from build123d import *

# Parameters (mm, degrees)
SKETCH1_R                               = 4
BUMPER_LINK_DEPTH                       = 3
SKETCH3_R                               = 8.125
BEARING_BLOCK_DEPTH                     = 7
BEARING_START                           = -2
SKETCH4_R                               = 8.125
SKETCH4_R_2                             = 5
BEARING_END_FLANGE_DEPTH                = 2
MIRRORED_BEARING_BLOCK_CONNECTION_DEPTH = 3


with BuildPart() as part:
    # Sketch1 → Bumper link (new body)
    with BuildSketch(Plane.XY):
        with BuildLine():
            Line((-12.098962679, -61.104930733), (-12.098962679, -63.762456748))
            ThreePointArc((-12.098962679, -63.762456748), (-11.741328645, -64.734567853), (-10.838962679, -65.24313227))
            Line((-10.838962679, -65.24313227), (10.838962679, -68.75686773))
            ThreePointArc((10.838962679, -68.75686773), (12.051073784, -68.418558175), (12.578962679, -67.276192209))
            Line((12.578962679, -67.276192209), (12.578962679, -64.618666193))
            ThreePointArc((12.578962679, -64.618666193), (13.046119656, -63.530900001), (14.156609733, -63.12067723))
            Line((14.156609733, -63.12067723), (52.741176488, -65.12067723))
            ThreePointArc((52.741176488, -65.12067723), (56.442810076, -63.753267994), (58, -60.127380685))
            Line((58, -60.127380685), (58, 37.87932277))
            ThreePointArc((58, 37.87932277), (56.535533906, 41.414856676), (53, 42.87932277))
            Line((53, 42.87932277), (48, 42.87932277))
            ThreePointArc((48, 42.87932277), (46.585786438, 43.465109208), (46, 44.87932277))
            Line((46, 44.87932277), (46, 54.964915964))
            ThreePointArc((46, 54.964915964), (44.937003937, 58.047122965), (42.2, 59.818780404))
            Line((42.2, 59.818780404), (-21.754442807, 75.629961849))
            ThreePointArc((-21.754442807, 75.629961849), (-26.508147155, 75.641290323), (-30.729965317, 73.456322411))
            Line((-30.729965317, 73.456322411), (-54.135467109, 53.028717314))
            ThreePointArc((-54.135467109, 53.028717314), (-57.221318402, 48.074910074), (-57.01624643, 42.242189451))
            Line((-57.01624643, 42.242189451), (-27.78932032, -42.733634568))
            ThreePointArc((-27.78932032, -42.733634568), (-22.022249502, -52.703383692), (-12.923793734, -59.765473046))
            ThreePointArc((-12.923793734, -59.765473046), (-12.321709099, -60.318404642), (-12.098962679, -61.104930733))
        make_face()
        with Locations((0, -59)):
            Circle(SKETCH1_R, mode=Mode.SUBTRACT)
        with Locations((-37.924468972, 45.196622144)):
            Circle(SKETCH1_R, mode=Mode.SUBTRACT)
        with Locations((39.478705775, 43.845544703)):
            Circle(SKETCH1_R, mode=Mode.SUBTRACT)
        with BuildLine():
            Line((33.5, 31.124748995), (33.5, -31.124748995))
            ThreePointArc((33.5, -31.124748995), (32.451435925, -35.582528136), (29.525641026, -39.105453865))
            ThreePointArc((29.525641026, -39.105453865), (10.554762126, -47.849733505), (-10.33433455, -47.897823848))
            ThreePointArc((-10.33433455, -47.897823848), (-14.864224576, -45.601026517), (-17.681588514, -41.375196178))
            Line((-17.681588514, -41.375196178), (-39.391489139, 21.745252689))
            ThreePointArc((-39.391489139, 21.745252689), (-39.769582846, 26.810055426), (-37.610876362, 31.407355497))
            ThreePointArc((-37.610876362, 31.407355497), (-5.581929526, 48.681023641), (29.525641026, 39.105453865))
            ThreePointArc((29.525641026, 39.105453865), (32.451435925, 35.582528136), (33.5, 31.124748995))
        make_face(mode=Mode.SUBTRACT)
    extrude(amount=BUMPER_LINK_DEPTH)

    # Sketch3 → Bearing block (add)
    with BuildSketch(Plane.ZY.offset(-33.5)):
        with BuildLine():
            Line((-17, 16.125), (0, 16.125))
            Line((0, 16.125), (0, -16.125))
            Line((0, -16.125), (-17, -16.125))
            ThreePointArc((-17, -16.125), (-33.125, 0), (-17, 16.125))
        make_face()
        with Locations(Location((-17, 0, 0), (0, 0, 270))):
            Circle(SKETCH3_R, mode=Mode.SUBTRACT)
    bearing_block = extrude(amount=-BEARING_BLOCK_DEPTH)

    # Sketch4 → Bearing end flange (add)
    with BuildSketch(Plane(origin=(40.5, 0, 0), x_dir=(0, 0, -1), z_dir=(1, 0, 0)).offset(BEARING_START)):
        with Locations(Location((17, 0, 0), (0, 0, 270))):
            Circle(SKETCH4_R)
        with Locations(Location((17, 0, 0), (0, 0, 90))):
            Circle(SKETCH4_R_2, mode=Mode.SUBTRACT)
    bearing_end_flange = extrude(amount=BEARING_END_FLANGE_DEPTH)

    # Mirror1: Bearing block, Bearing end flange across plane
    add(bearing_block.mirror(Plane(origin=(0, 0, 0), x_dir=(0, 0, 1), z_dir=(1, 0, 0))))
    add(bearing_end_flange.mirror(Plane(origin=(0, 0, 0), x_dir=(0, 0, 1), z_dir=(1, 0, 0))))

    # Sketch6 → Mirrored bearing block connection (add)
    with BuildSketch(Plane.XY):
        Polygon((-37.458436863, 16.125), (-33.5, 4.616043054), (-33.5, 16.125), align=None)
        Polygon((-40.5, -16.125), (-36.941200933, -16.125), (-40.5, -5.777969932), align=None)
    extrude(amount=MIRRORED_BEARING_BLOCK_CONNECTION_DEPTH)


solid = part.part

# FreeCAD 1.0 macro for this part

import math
import FreeCAD as App
import Part
import Sketcher

doc = App.newDocument("Part")
body = doc.addObject("PartDesign::Body", "Body")

# Sketch on XY plane
sketch1 = body.newObject("Sketcher::SketchObject", "Sketch")
sketch1.AttachmentSupport = (doc.getObject("XY_Plane"), [""])
sketch1.MapMode = "FlatFace"
sketch1.addGeometry([
    Part.LineSegment(App.Vector(-12.1, -61.1, 0), App.Vector(-12.1, -63.8, 0)),  # 0
    Part.ArcOfCircle(Part.Circle(App.Vector(-10.6, -63.8, 0), App.Vector(0, 0, 1), 1.5), math.radians(180), math.radians(261)),  # 1
    Part.LineSegment(App.Vector(-10.8, -65.2, 0), App.Vector(10.8, -68.8, 0)),  # 2
    Part.ArcOfCircle(Part.Circle(App.Vector(11.1, -67.3, 0), App.Vector(0, 0, 1), 1.5), math.radians(-99), math.radians(0)),  # 3
    Part.LineSegment(App.Vector(12.6, -67.3, 0), App.Vector(12.6, -64.6, 0)),  # 4
    Part.ArcOfCircle(Part.Circle(App.Vector(14.1, -64.6, 0), App.Vector(0, 0, 1), 1.5), math.radians(87), math.radians(180)),  # 5
    Part.LineSegment(App.Vector(14.2, -63.1, 0), App.Vector(52.7, -65.1, 0)),  # 6
    Part.ArcOfCircle(Part.Circle(App.Vector(53, -60.1, 0), App.Vector(0, 0, 1), 5), math.radians(-93), math.radians(0)),  # 7
    Part.LineSegment(App.Vector(58, -60.1, 0), App.Vector(58, 37.9, 0)),  # 8
    Part.ArcOfCircle(Part.Circle(App.Vector(53, 37.9, 0), App.Vector(0, 0, 1), 5), math.radians(0), math.radians(90)),  # 9
    Part.LineSegment(App.Vector(53, 42.9, 0), App.Vector(48, 42.9, 0)),  # 10
    Part.ArcOfCircle(Part.Circle(App.Vector(48, 44.9, 0), App.Vector(0, 0, 1), 2), math.radians(-180), math.radians(-90)),  # 11
    Part.LineSegment(App.Vector(46, 44.9, 0), App.Vector(46, 55, 0)),  # 12
    Part.ArcOfCircle(Part.Circle(App.Vector(41, 55, 0), App.Vector(0, 0, 1), 5), math.radians(0), math.radians(76)),  # 13
    Part.LineSegment(App.Vector(42.2, 59.8, 0), App.Vector(-21.8, 75.6, 0)),  # 14
    Part.ArcOfCircle(Part.Circle(App.Vector(-24.2, 65.9, 0), App.Vector(0, 0, 1), 10), math.radians(76), math.radians(131)),  # 15
    Part.LineSegment(App.Vector(-30.7, 73.5, 0), App.Vector(-54.1, 53, 0)),  # 16
    Part.ArcOfCircle(Part.Circle(App.Vector(-47.6, 45.5, 0), App.Vector(0, 0, 1), 10), math.radians(131), math.radians(199)),  # 17
    Part.LineSegment(App.Vector(-57, 42.2, 0), App.Vector(-27.8, -42.7, 0)),  # 18
    Part.ArcOfCircle(Part.Circle(App.Vector(0.6, -33, 0), App.Vector(0, 0, 1), 30), math.radians(-161), math.radians(-117)),  # 19
    Part.ArcOfCircle(Part.Circle(App.Vector(-13.6, -61.1, 0), App.Vector(0, 0, 1), 1.5), math.radians(0), math.radians(63)),  # 20
    Part.Circle(App.Vector(0, -59, 0), App.Vector(0, 0, 1), 4),  # 21
    Part.ArcOfCircle(Part.Circle(App.Vector(23.5, 31.1, 0), App.Vector(0, 0, 1), 10), math.radians(0), math.radians(53)),  # 22
    Part.LineSegment(App.Vector(33.5, 31.1, 0), App.Vector(33.5, -31.1, 0)),  # 23
    Part.ArcOfCircle(Part.Circle(App.Vector(23.5, -31.1, 0), App.Vector(0, 0, 1), 10), math.radians(-53), math.radians(0)),  # 24
    Part.ArcOfCircle(Part.Circle(App.Vector(0, 0, 0), App.Vector(0, 0, 1), 49), math.radians(-102), math.radians(-53)),  # 25
    Part.ArcOfCircle(Part.Circle(App.Vector(-8.2, -38.1, 0), App.Vector(0, 0, 1), 10), math.radians(-161), math.radians(-102)),  # 26
    Part.LineSegment(App.Vector(-17.7, -41.4, 0), App.Vector(-39.4, 21.7, 0)),  # 27
    Part.ArcOfCircle(Part.Circle(App.Vector(-29.9, 25, 0), App.Vector(0, 0, 1), 10), math.radians(140), math.radians(199)),  # 28
    Part.ArcOfCircle(Part.Circle(App.Vector(0, 0, 0), App.Vector(0, 0, 1), 49), math.radians(53), math.radians(140)),  # 29
    Part.Circle(App.Vector(-37.9, 45.2, 0), App.Vector(0, 0, 1), 4),  # 30
    Part.Circle(App.Vector(39.5, 43.8, 0), App.Vector(0, 0, 1), 4),  # 31
], False)
sketch1.addConstraint([
    Sketcher.Constraint("Tangent", 0, 2, 1, 1),
    Sketcher.Constraint("Tangent", 1, 2, 2, 1),
    Sketcher.Constraint("Tangent", 2, 2, 3, 1),
    Sketcher.Constraint("Tangent", 3, 2, 4, 1),
    Sketcher.Constraint("Tangent", 4, 2, 5, 2),
    Sketcher.Constraint("Tangent", 5, 1, 6, 1),
    Sketcher.Constraint("Tangent", 6, 2, 7, 1),
    Sketcher.Constraint("Tangent", 7, 2, 8, 1),
    Sketcher.Constraint("Tangent", 8, 2, 9, 1),
    Sketcher.Constraint("Tangent", 9, 2, 10, 1),
    Sketcher.Constraint("Tangent", 10, 2, 11, 2),
    Sketcher.Constraint("Tangent", 11, 1, 12, 1),
    Sketcher.Constraint("Tangent", 12, 2, 13, 1),
    Sketcher.Constraint("Tangent", 13, 2, 14, 1),
    Sketcher.Constraint("Tangent", 14, 2, 15, 1),
    Sketcher.Constraint("Tangent", 15, 2, 16, 1),
    Sketcher.Constraint("Tangent", 16, 2, 17, 1),
    Sketcher.Constraint("Tangent", 17, 2, 18, 1),
    Sketcher.Constraint("Tangent", 18, 2, 19, 1),
    Sketcher.Constraint("Tangent", 19, 2, 20, 2),
    Sketcher.Constraint("Tangent", 20, 1, 0, 1),
    Sketcher.Constraint("Tangent", 22, 1, 23, 1),
    Sketcher.Constraint("Tangent", 23, 2, 24, 2),
    Sketcher.Constraint("Tangent", 24, 1, 25, 2),
    Sketcher.Constraint("Tangent", 25, 1, 26, 2),
    Sketcher.Constraint("Tangent", 26, 1, 27, 1),
    Sketcher.Constraint("Tangent", 27, 2, 28, 2),
    Sketcher.Constraint("Tangent", 28, 1, 29, 2),
    Sketcher.Constraint("Tangent", 29, 1, 22, 2),
    Sketcher.Constraint("Vertical", 0),
    Sketcher.Constraint("Vertical", 4),
    Sketcher.Constraint("Vertical", 8),
    Sketcher.Constraint("Horizontal", 10),
    Sketcher.Constraint("Vertical", 12),
    Sketcher.Constraint("Vertical", 23),
    Sketcher.Constraint("Coincident", 25, 3, -1, 1),
    Sketcher.Constraint("Coincident", 29, 3, -1, 1),
    Sketcher.Constraint("Equal", 1, 3),
    Sketcher.Constraint("Equal", 3, 5),
    Sketcher.Constraint("Equal", 7, 9),
    Sketcher.Constraint("Equal", 9, 13),
    Sketcher.Constraint("Equal", 15, 17),
    Sketcher.Constraint("Equal", 5, 20),
    Sketcher.Constraint("Equal", 17, 22),
    Sketcher.Constraint("Equal", 22, 24),
    Sketcher.Constraint("Equal", 24, 26),
    Sketcher.Constraint("Equal", 26, 28),
    Sketcher.Constraint("Equal", 25, 29),
    Sketcher.Constraint("Equal", 21, 30),
    Sketcher.Constraint("Equal", 30, 31),
    Sketcher.Constraint("PointOnObject", 21, 3, -2),
    Sketcher.Constraint("Parallel", 18, 27),
    Sketcher.Constraint("Equal", 0, 4),
    Sketcher.Constraint("Diameter", 21, 8.0),
    Sketcher.Constraint("Radius", 7, 5.0),
    Sketcher.Constraint("Radius", 11, 2.0),
    Sketcher.Constraint("Radius", 15, 10.0),
    Sketcher.Constraint("Radius", 19, 30.0),
    Sketcher.Constraint("Radius", 25, 49.0),
    Sketcher.Constraint("Radius", 1, 1.5),
    Sketcher.Constraint("DistanceX", 10, 2, 10, 1, 5.0),
    Sketcher.Constraint("DistanceX", -1, 1, 7, 3, 53.0),
    Sketcher.Constraint("DistanceY", 21, 3, -1, 1, 59.0),
    Sketcher.Constraint("DistanceY", 6, 2, 5, 1, 2.0),
    Sketcher.Constraint("DistanceX", -1, 1, 22, 3, 23.5),
    Sketcher.Constraint("DistanceX", -1, 1, 13, 2, 42.2),
    Sketcher.Constraint("DistanceX", 1, 2, 1, 3, 0.24),
    Sketcher.Constraint("DistanceX", 16, 2, 30, 3, 16.210998),
    Sketcher.Constraint("DistanceY", 5, 3, 15, 3, 130.540899),
    Sketcher.Constraint("DistanceX", 17, 3, 15, 3, 23.405502),
    Sketcher.Constraint("DistanceY", 1, 3, 26, 3, 25.639699),
    Sketcher.Constraint("DistanceY", 1, 2, 20, 3, 4.138202),
    Sketcher.Constraint("DistanceY", 30, 3, 15, 2, 28.2597),
    Sketcher.Constraint("DistanceX", 17, 2, 17, 3, 9.456302),
    Sketcher.Constraint("DistanceY", 28, 3, 17, 2, 17.244498),
    Sketcher.Constraint("Distance", 18, 89.861582),
    Sketcher.Constraint("DistanceY", 8, 1, 8, 2, 98.006703),
    Sketcher.Constraint("DistanceY", 12, 1, 12, 2, 10.085593),
    Sketcher.Constraint("DistanceY", 7, 3, -1, 1, 60.127381),
    Sketcher.Constraint("DistanceY", 19, 3, -1, 1, 32.976319),
    Sketcher.Constraint("DistanceY", 31, 3, 11, 3, 1.033778),
    Sketcher.Constraint("DistanceX", -1, 1, 31, 3, 39.478706),
])
pad1 = body.newObject("PartDesign::Pad", "Pad")
pad1.Profile = sketch1
pad1.Length = 3

# Sketch on YZ plane
sketch2 = body.newObject("Sketcher::SketchObject", "Sketch001")
sketch2.AttachmentSupport = (doc.getObject("YZ_Plane"), [""])
sketch2.MapMode = "FlatFace"
sketch2.AttachmentOffset = App.Placement(App.Vector(0, 0, 33.5), App.Rotation())
sketch2.addGeometry([
    Part.LineSegment(App.Vector(16, 0, 0), App.Vector(16, -17, 0)),  # 0
    Part.ArcOfCircle(Part.Circle(App.Vector(0, -17, 0), App.Vector(0, 0, 1), 16), math.radians(180), math.radians(360)),  # 1
    Part.LineSegment(App.Vector(-16, -17, 0), App.Vector(-16, 0, 0)),  # 2
    Part.LineSegment(App.Vector(-16, 0, 0), App.Vector(16, 0, 0)),  # 3
    Part.Circle(App.Vector(0, -17, 0), App.Vector(0, 0, 1), 8),  # 4
], False)
sketch2.addConstraint([
    Sketcher.Constraint("Tangent", 0, 2, 1, 2),
    Sketcher.Constraint("Tangent", 1, 1, 2, 1),
    Sketcher.Constraint("Coincident", 2, 2, 3, 1),
    Sketcher.Constraint("Coincident", 3, 2, 0, 1),
    Sketcher.Constraint("Vertical", 0),
    Sketcher.Constraint("Vertical", 2),
    Sketcher.Constraint("Horizontal", 3),
    Sketcher.Constraint("Coincident", 4, 3, 1, 3),
    Sketcher.Constraint("Symmetric", 2, 2, 3, 2, -1, 1),
    Sketcher.Constraint("Diameter", 4, 16.25),
    Sketcher.Constraint("DistanceY", 0, 2, 0, 1, 17.0),
    Sketcher.Constraint("Radius", 1, 16.125),
])
pad2 = body.newObject("PartDesign::Pad", "Pad001")
pad2.Profile = sketch2
pad2.Length = 7

# Sketch on YZ plane
sketch3 = body.newObject("Sketcher::SketchObject", "Sketch002")
sketch3.AttachmentSupport = (doc.getObject("YZ_Plane"), [""])
sketch3.MapMode = "FlatFace"
sketch3.AttachmentOffset = App.Placement(App.Vector(0, 0, 38.5), App.Rotation())
sketch3.addGeometry([
    Part.Circle(App.Vector(0, -17, 0), App.Vector(0, 0, 1), 8),
    Part.Circle(App.Vector(0, -17, 0), App.Vector(0, 0, 1), 5),
], False)
sketch3.addConstraint([
    Sketcher.Constraint("Coincident", 1, 3, 0, 3),
    Sketcher.Constraint("PointOnObject", 0, 3, -2),
    Sketcher.Constraint("Diameter", 1, 10.0),
    Sketcher.Constraint("Diameter", 0, 16.25),
    Sketcher.Constraint("DistanceY", 0, 3, -1, 1, 17.0),
])
pad3 = body.newObject("PartDesign::Pad", "Pad002")
pad3.Profile = sketch3
pad3.Length = 2
doc.recompute()

mirrored = body.newObject("PartDesign::Mirrored", "Mirrored")
mirrored.Originals = [pad2, pad3]
mirrored.MirrorPlane = (doc.getObject("YZ_Plane"), [""])
body.Tip = mirrored

# Sketch on XY plane
sketch4 = body.newObject("Sketcher::SketchObject", "Sketch003")
sketch4.AttachmentSupport = (doc.getObject("XY_Plane"), [""])
sketch4.MapMode = "FlatFace"
sketch4.addGeometry([
    Part.LineSegment(App.Vector(-37.5, 16.1, 0), App.Vector(-33.5, 4.6, 0)),  # 0
    Part.LineSegment(App.Vector(-33.5, 4.6, 0), App.Vector(-33.5, 16.1, 0)),  # 1
    Part.LineSegment(App.Vector(-33.5, 16.1, 0), App.Vector(-37.5, 16.1, 0)),  # 2
    Part.LineSegment(App.Vector(-40.5, -16.1, 0), App.Vector(-36.9, -16.1, 0)),  # 3
    Part.LineSegment(App.Vector(-36.9, -16.1, 0), App.Vector(-40.5, -5.8, 0)),  # 4
    Part.LineSegment(App.Vector(-40.5, -5.8, 0), App.Vector(-40.5, -16.1, 0)),  # 5
], False)
sketch4.addConstraint([
    Sketcher.Constraint("Coincident", 0, 2, 1, 1),
    Sketcher.Constraint("Coincident", 1, 2, 2, 1),
    Sketcher.Constraint("Coincident", 2, 2, 0, 1),
    Sketcher.Constraint("Coincident", 3, 2, 4, 1),
    Sketcher.Constraint("Coincident", 4, 2, 5, 1),
    Sketcher.Constraint("Coincident", 5, 2, 3, 1),
    Sketcher.Constraint("Vertical", 1),
    Sketcher.Constraint("Horizontal", 2),
    Sketcher.Constraint("Horizontal", 3),
    Sketcher.Constraint("Vertical", 5),
    Sketcher.Constraint("Parallel", 0, 4),
    Sketcher.Constraint("DistanceX", 4, 2, 0, 2, 7.0),
    Sketcher.Constraint("DistanceX", 0, 2, -1, 1, 33.5),
    Sketcher.Constraint("DistanceY", 3, 2, 2, 2, 32.25),
    Sketcher.Constraint("DistanceX", 3, 1, 3, 2, 3.558799),
    Sketcher.Constraint("DistanceY", -1, 1, 1, 2, 16.125),
    Sketcher.Constraint("DistanceY", 5, 2, 5, 1, 10.34703),
    Sketcher.Constraint("DistanceX", 2, 2, 2, 1, 3.958437),
])
pad4 = body.newObject("PartDesign::Pad", "Pad003")
pad4.Profile = sketch4
pad4.Length = 3

doc.recompute()
